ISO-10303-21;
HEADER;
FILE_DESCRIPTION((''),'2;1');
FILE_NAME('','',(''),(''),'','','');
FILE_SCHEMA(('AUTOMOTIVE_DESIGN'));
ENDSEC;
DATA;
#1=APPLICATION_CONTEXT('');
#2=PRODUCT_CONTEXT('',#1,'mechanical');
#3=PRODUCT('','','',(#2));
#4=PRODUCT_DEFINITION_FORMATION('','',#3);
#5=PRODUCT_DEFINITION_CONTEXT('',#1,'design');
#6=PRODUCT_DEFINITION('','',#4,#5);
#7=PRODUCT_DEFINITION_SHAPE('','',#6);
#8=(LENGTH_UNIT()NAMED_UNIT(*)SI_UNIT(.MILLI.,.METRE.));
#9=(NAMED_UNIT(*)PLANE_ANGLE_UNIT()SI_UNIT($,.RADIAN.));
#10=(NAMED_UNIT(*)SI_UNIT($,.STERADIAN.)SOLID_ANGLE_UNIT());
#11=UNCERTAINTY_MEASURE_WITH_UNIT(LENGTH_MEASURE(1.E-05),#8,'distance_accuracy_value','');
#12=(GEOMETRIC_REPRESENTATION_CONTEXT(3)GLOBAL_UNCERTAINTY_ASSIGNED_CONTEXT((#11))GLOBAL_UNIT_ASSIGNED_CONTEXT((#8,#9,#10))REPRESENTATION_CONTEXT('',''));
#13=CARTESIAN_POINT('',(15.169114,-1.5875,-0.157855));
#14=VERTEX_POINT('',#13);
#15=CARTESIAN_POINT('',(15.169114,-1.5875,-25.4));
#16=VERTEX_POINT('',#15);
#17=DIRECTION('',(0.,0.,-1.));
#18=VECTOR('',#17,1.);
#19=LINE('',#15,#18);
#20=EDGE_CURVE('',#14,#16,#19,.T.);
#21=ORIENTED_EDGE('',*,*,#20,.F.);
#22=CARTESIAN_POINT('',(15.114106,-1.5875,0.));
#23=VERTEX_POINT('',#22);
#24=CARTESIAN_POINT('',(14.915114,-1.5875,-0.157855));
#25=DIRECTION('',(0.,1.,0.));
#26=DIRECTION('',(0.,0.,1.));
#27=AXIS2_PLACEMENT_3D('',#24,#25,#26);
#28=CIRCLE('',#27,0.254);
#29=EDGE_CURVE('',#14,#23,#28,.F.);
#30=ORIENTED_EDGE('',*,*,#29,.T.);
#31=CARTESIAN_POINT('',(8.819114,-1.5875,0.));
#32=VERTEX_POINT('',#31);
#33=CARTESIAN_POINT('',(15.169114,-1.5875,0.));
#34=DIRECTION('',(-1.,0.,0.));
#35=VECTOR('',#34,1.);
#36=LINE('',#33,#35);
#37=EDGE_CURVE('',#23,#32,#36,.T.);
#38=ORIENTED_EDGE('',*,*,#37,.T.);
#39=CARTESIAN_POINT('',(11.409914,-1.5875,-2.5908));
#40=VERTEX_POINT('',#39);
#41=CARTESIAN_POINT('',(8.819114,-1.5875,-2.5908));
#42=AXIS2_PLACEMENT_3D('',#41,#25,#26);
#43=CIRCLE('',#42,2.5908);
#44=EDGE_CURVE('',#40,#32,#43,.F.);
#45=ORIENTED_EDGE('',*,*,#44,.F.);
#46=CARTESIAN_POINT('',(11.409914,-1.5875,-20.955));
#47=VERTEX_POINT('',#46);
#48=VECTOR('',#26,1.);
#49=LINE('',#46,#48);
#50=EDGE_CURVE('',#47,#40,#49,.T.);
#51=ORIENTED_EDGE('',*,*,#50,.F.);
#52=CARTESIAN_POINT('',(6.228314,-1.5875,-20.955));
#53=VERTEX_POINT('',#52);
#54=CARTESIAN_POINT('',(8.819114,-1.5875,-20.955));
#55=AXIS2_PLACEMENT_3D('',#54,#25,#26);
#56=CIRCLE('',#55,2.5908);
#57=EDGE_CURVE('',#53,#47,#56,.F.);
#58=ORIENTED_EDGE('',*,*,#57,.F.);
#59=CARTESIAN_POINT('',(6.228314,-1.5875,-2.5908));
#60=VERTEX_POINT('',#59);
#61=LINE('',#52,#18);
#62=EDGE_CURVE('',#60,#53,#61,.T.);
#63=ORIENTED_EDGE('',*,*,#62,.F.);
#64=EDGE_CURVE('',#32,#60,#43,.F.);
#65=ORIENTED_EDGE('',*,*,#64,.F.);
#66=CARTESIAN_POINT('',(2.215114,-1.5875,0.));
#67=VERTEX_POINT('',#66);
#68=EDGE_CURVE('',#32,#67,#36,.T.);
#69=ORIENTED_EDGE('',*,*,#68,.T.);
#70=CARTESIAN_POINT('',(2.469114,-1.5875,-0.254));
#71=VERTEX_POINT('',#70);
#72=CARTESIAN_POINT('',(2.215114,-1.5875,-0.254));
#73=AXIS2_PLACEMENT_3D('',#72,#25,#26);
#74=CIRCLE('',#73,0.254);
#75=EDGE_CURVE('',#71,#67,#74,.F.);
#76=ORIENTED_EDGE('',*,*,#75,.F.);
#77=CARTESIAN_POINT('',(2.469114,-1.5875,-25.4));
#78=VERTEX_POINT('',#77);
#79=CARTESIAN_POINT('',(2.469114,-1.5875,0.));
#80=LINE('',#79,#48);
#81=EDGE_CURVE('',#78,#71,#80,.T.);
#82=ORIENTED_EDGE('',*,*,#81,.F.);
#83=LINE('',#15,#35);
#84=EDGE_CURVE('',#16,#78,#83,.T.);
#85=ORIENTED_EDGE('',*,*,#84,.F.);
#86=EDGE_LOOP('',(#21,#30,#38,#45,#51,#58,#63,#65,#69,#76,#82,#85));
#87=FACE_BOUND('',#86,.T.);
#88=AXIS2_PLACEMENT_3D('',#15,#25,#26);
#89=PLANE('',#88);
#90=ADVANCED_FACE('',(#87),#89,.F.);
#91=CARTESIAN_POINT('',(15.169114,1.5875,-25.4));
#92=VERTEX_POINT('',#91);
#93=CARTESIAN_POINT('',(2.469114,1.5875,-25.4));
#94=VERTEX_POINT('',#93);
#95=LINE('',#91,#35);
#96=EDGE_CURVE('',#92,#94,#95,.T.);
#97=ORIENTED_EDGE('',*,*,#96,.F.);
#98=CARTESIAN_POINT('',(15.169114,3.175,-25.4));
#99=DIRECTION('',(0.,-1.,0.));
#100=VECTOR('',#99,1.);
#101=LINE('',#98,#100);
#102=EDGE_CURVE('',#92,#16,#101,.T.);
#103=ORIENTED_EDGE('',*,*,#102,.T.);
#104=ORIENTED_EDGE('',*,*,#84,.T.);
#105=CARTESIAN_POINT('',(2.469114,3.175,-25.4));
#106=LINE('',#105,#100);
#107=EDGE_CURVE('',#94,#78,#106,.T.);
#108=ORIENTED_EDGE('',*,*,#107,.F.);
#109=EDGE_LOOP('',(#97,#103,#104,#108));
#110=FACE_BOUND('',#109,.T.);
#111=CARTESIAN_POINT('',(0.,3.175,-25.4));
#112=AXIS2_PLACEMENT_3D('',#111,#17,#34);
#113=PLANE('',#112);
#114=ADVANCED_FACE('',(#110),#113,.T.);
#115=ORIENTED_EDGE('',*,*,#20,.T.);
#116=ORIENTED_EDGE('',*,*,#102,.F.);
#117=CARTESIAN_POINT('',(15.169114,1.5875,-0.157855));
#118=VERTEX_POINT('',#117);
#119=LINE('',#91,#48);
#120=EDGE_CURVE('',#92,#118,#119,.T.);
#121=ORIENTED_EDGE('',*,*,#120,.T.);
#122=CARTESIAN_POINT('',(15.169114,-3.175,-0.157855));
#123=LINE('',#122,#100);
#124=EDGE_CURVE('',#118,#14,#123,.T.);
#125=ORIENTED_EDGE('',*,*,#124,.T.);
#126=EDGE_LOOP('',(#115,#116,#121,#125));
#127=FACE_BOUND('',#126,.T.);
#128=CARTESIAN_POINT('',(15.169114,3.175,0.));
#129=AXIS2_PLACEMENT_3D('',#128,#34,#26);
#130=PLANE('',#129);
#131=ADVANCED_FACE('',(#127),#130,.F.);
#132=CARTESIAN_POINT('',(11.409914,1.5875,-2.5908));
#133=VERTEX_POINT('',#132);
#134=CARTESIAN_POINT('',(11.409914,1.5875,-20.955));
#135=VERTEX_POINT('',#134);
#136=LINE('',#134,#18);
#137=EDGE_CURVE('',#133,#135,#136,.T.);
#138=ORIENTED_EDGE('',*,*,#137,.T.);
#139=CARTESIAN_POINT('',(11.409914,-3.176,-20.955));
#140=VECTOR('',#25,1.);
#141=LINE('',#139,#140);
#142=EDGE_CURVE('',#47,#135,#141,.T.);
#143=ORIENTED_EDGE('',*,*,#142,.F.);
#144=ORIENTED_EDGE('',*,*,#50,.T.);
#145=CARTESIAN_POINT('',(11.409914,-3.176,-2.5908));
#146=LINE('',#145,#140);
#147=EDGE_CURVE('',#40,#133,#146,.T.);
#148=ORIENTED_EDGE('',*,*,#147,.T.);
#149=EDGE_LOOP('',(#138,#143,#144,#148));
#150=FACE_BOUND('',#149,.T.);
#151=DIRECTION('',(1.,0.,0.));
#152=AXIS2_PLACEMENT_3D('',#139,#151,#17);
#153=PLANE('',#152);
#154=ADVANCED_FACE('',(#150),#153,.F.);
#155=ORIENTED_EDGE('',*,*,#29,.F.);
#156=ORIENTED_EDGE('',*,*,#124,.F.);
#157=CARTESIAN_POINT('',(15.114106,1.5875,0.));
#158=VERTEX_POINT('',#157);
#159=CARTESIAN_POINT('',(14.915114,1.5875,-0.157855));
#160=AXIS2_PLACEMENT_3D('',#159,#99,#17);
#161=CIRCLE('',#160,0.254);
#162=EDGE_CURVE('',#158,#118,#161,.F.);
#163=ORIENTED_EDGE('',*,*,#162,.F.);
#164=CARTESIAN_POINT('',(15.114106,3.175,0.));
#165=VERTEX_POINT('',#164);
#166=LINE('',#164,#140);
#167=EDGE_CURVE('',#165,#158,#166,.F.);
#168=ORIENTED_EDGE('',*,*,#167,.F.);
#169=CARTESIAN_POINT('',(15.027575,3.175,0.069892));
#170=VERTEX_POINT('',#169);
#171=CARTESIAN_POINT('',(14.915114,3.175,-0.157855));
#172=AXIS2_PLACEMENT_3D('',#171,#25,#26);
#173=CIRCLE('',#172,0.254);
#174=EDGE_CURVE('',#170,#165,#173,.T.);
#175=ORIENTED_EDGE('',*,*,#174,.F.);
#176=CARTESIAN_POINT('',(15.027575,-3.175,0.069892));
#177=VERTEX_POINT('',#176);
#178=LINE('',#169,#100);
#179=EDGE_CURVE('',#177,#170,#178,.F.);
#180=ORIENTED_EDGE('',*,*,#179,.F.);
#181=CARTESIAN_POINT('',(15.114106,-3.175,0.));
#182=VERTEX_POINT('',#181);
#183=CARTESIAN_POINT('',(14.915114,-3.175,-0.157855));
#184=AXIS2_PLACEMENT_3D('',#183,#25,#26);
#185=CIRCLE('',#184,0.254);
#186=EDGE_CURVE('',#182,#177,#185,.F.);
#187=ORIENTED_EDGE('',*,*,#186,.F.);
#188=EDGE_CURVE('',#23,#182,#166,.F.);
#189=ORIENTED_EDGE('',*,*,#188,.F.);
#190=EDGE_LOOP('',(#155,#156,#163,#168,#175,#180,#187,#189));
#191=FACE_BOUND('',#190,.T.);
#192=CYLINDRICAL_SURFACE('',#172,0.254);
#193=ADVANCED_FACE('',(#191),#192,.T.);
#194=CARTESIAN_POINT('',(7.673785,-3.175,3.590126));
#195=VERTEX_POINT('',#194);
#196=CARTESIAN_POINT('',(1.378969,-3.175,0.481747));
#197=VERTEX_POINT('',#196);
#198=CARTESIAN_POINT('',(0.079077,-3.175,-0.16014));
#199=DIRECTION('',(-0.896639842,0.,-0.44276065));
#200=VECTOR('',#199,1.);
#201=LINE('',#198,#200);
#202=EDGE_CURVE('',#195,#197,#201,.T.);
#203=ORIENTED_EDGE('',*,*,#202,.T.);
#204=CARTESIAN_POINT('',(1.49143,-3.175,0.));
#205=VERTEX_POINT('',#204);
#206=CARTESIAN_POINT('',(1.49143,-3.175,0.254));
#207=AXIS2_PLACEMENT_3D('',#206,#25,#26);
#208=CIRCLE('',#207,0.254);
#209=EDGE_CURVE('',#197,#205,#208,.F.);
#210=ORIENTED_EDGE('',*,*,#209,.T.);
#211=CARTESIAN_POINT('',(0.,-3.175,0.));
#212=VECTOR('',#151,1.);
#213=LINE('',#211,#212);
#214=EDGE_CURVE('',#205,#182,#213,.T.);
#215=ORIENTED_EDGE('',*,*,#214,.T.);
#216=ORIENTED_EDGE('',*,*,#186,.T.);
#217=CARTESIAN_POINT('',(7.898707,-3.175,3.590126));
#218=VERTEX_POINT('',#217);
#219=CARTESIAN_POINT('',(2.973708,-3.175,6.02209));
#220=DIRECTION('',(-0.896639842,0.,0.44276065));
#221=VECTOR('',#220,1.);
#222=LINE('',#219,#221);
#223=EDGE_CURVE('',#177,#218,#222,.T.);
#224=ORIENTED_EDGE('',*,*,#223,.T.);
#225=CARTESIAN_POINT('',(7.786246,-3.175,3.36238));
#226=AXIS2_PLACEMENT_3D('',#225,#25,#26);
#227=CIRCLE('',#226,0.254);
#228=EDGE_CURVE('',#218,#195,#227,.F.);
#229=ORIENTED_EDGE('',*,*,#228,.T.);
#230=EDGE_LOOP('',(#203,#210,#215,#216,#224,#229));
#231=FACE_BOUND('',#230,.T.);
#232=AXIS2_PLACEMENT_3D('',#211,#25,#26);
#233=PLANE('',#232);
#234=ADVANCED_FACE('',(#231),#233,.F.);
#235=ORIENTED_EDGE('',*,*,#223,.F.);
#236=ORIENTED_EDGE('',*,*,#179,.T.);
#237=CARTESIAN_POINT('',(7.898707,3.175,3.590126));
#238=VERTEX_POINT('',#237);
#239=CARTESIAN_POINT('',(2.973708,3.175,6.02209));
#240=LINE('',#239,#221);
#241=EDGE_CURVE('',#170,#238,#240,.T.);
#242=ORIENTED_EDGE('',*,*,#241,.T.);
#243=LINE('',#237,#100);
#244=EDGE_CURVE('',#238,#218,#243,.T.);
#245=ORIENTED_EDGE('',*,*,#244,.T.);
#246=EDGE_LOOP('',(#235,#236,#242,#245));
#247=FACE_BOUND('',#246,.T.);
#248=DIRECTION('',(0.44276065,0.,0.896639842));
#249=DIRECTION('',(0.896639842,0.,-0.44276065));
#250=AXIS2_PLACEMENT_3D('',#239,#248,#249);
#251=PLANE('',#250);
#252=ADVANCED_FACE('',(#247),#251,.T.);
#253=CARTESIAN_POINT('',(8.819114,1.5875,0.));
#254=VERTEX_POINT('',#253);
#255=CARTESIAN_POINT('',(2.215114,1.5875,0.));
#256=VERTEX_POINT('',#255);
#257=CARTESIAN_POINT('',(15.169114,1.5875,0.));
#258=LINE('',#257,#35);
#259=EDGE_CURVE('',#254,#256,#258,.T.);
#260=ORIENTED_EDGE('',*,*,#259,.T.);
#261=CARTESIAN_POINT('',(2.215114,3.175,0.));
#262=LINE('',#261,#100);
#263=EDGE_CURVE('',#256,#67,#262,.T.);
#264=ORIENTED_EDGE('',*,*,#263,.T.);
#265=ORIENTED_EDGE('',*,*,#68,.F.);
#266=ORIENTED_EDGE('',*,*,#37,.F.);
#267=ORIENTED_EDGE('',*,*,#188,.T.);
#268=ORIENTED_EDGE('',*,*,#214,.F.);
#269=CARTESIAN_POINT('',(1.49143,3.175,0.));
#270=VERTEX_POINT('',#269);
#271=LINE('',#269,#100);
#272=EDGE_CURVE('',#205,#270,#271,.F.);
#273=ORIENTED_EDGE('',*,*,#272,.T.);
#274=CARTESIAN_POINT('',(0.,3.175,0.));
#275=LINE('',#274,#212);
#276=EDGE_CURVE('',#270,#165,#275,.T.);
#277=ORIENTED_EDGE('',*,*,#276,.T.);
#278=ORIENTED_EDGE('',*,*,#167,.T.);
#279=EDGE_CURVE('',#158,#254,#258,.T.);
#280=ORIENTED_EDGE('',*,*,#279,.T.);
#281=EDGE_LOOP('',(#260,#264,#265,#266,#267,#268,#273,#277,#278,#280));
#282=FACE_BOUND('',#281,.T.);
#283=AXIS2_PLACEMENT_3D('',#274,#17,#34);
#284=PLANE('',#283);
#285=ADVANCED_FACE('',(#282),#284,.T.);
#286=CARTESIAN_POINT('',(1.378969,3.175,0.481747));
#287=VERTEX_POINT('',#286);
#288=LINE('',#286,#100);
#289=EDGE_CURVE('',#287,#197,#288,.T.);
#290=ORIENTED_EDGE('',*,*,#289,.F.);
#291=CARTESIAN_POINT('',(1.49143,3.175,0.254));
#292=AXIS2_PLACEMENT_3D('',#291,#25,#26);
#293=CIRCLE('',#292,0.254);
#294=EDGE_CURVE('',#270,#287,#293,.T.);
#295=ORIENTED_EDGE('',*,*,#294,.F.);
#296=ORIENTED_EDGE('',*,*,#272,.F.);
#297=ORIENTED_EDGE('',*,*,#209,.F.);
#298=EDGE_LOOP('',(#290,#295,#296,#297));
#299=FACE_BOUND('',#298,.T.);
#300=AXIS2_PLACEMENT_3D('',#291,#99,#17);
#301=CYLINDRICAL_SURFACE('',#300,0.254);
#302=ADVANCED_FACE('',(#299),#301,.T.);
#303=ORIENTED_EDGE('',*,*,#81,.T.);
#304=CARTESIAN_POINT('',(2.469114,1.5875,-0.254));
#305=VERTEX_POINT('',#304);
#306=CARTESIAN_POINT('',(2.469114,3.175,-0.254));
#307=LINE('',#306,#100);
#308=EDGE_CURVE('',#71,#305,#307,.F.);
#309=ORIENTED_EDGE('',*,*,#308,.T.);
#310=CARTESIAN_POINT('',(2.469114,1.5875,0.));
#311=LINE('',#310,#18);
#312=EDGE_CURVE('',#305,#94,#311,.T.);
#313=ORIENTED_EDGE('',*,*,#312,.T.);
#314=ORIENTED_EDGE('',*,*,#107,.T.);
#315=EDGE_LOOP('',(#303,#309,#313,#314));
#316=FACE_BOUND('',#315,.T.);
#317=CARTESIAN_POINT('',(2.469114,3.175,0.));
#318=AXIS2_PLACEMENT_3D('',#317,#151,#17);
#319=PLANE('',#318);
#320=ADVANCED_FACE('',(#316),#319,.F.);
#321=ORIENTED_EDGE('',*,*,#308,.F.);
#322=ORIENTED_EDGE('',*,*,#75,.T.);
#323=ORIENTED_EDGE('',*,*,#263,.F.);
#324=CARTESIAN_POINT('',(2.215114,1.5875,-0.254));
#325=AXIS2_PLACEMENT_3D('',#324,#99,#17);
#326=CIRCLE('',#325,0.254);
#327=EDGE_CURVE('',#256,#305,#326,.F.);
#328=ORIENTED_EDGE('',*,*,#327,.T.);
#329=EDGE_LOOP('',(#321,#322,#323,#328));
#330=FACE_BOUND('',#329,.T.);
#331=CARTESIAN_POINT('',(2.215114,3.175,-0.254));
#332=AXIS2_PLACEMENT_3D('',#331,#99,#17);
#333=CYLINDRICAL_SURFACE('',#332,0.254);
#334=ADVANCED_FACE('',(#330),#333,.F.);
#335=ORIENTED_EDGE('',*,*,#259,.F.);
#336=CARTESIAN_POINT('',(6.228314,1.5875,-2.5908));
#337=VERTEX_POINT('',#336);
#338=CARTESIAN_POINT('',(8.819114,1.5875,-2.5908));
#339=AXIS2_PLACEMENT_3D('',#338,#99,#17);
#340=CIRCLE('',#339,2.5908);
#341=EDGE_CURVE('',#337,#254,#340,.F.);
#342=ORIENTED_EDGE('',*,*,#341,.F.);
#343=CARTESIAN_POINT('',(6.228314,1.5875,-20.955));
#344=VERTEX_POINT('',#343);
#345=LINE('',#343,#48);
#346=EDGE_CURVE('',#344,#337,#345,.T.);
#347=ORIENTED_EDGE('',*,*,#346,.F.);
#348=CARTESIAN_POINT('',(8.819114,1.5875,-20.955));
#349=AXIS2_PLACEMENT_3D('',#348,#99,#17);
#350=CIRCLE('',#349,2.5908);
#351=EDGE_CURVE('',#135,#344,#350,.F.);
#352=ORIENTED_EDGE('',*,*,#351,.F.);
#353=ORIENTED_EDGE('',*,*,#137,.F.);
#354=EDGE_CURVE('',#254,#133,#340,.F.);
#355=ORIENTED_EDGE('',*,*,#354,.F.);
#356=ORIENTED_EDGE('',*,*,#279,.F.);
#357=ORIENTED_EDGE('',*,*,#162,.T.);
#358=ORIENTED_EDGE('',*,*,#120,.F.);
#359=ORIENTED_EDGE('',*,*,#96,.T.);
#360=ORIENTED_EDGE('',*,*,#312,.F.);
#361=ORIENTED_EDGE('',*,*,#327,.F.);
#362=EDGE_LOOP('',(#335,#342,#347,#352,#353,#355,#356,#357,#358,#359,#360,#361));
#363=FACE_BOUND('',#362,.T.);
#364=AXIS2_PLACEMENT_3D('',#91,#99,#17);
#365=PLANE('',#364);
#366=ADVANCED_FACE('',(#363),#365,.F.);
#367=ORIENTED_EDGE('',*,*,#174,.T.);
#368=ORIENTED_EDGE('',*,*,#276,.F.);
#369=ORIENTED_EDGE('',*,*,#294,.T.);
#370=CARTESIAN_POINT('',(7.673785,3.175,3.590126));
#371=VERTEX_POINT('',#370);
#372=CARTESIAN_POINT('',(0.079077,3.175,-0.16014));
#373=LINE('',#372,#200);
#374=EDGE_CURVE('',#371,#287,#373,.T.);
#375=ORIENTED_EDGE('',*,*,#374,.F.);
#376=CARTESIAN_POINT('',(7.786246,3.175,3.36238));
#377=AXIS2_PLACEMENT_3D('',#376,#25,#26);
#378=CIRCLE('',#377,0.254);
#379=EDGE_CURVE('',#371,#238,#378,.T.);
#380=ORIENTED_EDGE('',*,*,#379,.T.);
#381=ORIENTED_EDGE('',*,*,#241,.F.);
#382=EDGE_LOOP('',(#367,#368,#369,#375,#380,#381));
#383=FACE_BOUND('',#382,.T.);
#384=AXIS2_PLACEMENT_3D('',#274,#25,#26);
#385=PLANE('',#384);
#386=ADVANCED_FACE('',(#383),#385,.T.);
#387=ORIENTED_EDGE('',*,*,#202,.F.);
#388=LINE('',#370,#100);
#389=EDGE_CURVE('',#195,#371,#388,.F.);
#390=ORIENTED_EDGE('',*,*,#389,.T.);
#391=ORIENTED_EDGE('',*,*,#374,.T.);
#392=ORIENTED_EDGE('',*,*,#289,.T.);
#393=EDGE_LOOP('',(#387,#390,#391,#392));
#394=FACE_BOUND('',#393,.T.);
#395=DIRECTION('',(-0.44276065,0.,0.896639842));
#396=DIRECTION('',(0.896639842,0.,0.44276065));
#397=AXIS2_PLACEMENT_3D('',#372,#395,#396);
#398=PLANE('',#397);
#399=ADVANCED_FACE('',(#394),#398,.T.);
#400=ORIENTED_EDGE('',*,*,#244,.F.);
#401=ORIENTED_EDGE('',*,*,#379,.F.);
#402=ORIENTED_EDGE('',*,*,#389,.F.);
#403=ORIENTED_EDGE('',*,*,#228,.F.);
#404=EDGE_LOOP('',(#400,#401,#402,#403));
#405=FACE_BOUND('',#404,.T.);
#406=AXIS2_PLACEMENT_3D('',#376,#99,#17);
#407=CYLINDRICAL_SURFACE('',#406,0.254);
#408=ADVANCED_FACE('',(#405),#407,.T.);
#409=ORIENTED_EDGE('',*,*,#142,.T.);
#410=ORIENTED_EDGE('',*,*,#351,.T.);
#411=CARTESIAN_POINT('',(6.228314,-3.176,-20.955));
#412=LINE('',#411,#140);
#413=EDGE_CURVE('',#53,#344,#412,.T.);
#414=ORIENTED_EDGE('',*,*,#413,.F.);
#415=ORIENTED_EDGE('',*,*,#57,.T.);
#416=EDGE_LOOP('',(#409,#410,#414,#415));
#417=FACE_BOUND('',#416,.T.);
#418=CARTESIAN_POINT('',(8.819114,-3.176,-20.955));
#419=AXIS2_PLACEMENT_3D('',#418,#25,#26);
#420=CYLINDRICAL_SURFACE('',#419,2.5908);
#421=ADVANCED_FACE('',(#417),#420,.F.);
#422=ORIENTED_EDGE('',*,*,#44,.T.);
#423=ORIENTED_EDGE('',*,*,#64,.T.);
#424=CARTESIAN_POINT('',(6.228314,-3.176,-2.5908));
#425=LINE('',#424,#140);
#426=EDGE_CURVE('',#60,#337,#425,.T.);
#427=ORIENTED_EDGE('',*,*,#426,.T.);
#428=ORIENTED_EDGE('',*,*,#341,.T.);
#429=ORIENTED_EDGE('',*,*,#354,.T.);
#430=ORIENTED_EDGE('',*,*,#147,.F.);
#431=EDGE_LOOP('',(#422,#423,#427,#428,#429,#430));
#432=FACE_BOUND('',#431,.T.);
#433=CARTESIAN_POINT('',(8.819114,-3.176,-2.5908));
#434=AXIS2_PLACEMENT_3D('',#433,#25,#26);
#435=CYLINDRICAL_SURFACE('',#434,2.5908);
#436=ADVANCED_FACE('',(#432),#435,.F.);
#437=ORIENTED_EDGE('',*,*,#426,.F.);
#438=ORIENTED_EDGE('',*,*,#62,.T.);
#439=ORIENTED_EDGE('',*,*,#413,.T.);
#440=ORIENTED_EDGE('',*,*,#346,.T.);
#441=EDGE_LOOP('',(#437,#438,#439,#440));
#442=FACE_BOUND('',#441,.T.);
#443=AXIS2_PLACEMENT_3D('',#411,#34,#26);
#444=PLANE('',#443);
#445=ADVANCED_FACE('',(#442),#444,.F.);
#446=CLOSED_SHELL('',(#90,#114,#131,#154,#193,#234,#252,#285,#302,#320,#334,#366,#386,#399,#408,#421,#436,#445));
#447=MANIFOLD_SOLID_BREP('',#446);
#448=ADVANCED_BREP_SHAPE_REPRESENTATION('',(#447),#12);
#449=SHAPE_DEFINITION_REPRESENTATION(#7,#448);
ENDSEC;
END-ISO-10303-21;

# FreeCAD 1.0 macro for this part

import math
import FreeCAD as App
import Part
import Sketcher

V = App.Vector
Q = App.Units.Quantity


def edges_at(feature, points):
    """Names of the edges that pass closest to the given points."""
    edges = feature.Shape.Edges
    near = lambda p: min(range(len(edges)), key=lambda i: edges[i].distToShape(Part.Vertex(*p))[0])
    return sorted({f"Edge{near(p) + 1}" for p in points})


def add_polygon(sketch, points):
    """Adds a closed chain of lines whose ends are joined by coincident constraints."""
    first, n = sketch.GeometryCount, len(points)
    for a, b in zip(points, points[1:] + points[:1]):
        sketch.addGeometry(Part.LineSegment(App.Vector(*a, 0), App.Vector(*b, 0)), False)
    for i in range(n):
        sketch.addConstraint(Sketcher.Constraint("Coincident", first + i, 2, first + (i + 1) % n, 1))

doc = App.newDocument("Part")
body = doc.addObject("PartDesign::Body", "Body")

sketch1 = body.newObject("Sketcher::SketchObject", "Sketch")
sketch1.AttachmentSupport = (doc.getObject("XZ_Plane"), [""])
sketch1.MapMode = "FlatFace"
add_polygon(sketch1, [(7.8, 3.6), (15.2, 0), (15.2, -25.4), (2.5, -25.4), (2.5, 0), (0.4, 0)])
sketch1.addConstraint([
    Sketcher.Constraint("Vertical", 1),
    Sketcher.Constraint("Horizontal", 2),
    Sketcher.Constraint("Vertical", 3),
    Sketcher.Constraint("Horizontal", 4),
    Sketcher.Constraint("PointOnObject", 0, 2, -1),
    Sketcher.Constraint("PointOnObject", 3, 2, -1),
    Sketcher.Constraint("Equal", 0, 5),
    Sketcher.Constraint("DistanceY", 1, 2, 1, 1, Q("1 in")),
    Sketcher.Constraint("DistanceX", 2, 2, 2, 1, Q("0.5 in")),
    Sketcher.Constraint("Distance", 0, Q("8.233928 mm")),
    Sketcher.Constraint("DistanceX", 4, 2, 4, 1, Q("2.065736 mm")),
    Sketcher.Constraint("DistanceX", -1, 1, 4, 2, Q("0.403378 mm")),
])
pad1 = body.newObject("PartDesign::Pad", "Pad")
pad1.Profile = sketch1
pad1.Length = Q("0.25 in")
pad1.Midplane = True
doc.recompute()

fillet = body.newObject("PartDesign::Fillet", "Fillet")
fillet.Base = (pad1, edges_at(pad1, [
    (2.469, 0, 0),
    (15.169, 0, 0),
    (7.786, 0, 3.646),
    (0.403, 0, 0),
]))
fillet.Radius = Q("0.01 in")

sketch2 = body.newObject("Sketcher::SketchObject", "Sketch001")
sketch2.AttachmentSupport = (doc.getObject("XZ_Plane"), [""])
sketch2.MapMode = "FlatFace"
sketch2.AttachmentOffset = App.Placement(V(0, 0, -0.125 * 25.4), App.Rotation())
sketch2.addGeometry([
    Part.LineSegment(V(11.4, -2.6, 0), V(11.4, -21, 0)),
    Part.ArcOfCircle(Part.Circle(V(8.8, -21, 0), V(0, 0, 1), 2.6), math.radians(180), math.radians(360)),
    Part.LineSegment(V(6.2, -21, 0), V(6.2, -2.6, 0)),
    Part.ArcOfCircle(Part.Circle(V(8.8, -2.6, 0), V(0, 0, 1), 2.6), math.radians(0), math.radians(180)),
], False)
sketch2.addConstraint([
    Sketcher.Constraint("Tangent", 0, 2, 1, 2),
    Sketcher.Constraint("Tangent", 1, 1, 2, 1),
    Sketcher.Constraint("Tangent", 2, 2, 3, 2),
    Sketcher.Constraint("Tangent", 3, 1, 0, 1),
    Sketcher.Constraint("Vertical", 0),
    Sketcher.Constraint("Vertical", 2),
    Sketcher.Constraint("Radius", 1, Q("0.102 in")),
    Sketcher.Constraint("DistanceY", 0, 2, 0, 1, Q("0.723 in")),
    Sketcher.Constraint("DistanceY", 1, 3, -1, 1, Q("0.825 in")),
    Sketcher.Constraint("DistanceX", -1, 1, 1, 3, Q("8.819114 mm")),
])
pocket1 = body.newObject("PartDesign::Pocket", "Pocket")
pocket1.Profile = sketch2
pocket1.Type = "UpToFirst"
pocket1.Reversed = True

sketch3 = body.newObject("Sketcher::SketchObject", "Sketch002")
sketch3.AttachmentSupport = (doc.getObject("YZ_Plane"), [""])
sketch3.MapMode = "FlatFace"
sketch3.AttachmentOffset = App.Placement(V(0, 0, 2.469114), App.Rotation())
add_polygon(sketch3, [(3.2, -25.4), (1.6, -25.4), (1.6, 0), (3.2, 0)])
add_polygon(sketch3, [(-1.6, -25.4), (-3.2, -25.4), (-3.2, 0), (-1.6, 0)])
sketch3.addConstraint([
    Sketcher.Constraint("Horizontal", 0),
    Sketcher.Constraint("Vertical", 1),
    Sketcher.Constraint("Horizontal", 2),
    Sketcher.Constraint("Vertical", 3),
    Sketcher.Constraint("Horizontal", 4),
    Sketcher.Constraint("Vertical", 5),
    Sketcher.Constraint("Horizontal", 6),
    Sketcher.Constraint("Vertical", 7),
    Sketcher.Constraint("Symmetric", 2, 2, 5, 2, -1, 1),
    Sketcher.Constraint("Symmetric", 1, 2, 6, 2, -2),
    Sketcher.Constraint("Horizontal", 3, 2, 4, 2),
    Sketcher.Constraint("DistanceY", 1, 1, 1, 2, Q("1 in")),
    Sketcher.Constraint("DistanceX", 0, 2, 0, 1, Q("0.0625 in")),
    Sketcher.Constraint("DistanceX", 4, 2, 3, 2, Q("0.25 in")),
])
pocket2 = body.newObject("PartDesign::Pocket", "Pocket001")
pocket2.Profile = sketch3
pocket2.Type = "ThroughAll"
pocket2.Midplane = True

doc.recompute()
